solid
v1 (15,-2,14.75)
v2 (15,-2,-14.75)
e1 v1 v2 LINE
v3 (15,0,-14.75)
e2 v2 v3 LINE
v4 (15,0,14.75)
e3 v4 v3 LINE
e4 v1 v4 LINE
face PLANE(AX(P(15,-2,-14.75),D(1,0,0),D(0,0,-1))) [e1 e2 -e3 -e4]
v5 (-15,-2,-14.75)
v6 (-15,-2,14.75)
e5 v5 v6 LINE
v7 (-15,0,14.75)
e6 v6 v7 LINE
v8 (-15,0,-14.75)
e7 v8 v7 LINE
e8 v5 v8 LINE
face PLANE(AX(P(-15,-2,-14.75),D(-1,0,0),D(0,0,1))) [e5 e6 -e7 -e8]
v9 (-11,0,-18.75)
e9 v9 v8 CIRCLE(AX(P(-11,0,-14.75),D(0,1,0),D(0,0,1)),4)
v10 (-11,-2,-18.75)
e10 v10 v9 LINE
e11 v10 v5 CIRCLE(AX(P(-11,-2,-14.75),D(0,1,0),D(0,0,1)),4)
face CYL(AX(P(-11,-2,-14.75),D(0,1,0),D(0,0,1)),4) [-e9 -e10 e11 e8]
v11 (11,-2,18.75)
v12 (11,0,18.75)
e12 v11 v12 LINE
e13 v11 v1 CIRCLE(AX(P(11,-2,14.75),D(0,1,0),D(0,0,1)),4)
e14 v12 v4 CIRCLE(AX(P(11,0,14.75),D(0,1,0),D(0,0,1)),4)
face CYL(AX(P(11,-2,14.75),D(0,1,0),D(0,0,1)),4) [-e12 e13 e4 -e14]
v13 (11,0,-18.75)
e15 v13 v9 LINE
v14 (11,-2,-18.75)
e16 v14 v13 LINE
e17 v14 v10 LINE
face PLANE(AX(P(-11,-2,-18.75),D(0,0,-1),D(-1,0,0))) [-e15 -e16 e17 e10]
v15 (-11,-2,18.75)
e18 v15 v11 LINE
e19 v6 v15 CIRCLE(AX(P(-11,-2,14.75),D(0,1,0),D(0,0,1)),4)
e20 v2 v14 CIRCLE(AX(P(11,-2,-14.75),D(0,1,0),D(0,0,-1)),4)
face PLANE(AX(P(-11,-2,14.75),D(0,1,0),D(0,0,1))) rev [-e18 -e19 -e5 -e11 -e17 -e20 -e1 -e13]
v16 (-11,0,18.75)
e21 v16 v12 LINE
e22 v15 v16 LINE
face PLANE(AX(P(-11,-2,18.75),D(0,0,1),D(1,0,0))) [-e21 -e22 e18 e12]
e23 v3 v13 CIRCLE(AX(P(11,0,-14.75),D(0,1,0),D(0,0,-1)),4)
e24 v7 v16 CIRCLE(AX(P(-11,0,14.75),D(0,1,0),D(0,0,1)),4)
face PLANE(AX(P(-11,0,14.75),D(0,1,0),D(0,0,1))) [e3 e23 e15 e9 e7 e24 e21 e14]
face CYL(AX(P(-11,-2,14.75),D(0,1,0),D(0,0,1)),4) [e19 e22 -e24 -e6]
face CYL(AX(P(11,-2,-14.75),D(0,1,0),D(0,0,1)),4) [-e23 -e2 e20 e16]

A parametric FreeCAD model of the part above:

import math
import FreeCAD as App
import Part
import Sketcher
Q = App.Units.Quantity

doc = App.newDocument("Part")
body = doc.addObject("PartDesign::Body", "Body")

# Sketch on XZ plane
sketch1 = doc.addObject("Sketcher::SketchObject", "Sketch")
body.addObject(sketch1)
sketch1.AttachmentSupport = (doc.XZ_Plane, [""])
sketch1.MapMode = "FlatFace"
sketch1.addGeometry([
    Part.LineSegment(App.Vector(11, -18.8, 0), App.Vector(-11, -18.8, 0)),  # 0
    Part.ArcOfCircle(Part.Circle(App.Vector(-11, -14.8, 0), App.Vector(0, 0, 1), 4), math.radians(180), math.radians(270)),  # 1
    Part.LineSegment(App.Vector(-15, -14.8, 0), App.Vector(-15, 14.8, 0)),  # 2
    Part.ArcOfCircle(Part.Circle(App.Vector(-11, 14.8, 0), App.Vector(0, 0, 1), 4), math.radians(90), math.radians(180)),  # 3
    Part.LineSegment(App.Vector(-11, 18.8, 0), App.Vector(11, 18.8, 0)),  # 4
    Part.ArcOfCircle(Part.Circle(App.Vector(11, 14.8, 0), App.Vector(0, 0, 1), 4), math.radians(0), math.radians(90)),  # 5
    Part.LineSegment(App.Vector(15, 14.8, 0), App.Vector(15, -14.8, 0)),  # 6
    Part.ArcOfCircle(Part.Circle(App.Vector(11, -14.8, 0), App.Vector(0, 0, 1), 4), math.radians(-90), math.radians(0)),  # 7
], False)
sketch1.addConstraint([
    Sketcher.Constraint("Tangent", 0, 2, 1, 2),
    Sketcher.Constraint("Tangent", 1, 1, 2, 1),
    Sketcher.Constraint("Tangent", 2, 2, 3, 2),
    Sketcher.Constraint("Tangent", 3, 1, 4, 1),
    Sketcher.Constraint("Tangent", 4, 2, 5, 2),
    Sketcher.Constraint("Tangent", 5, 1, 6, 1),
    Sketcher.Constraint("Tangent", 6, 2, 7, 2),
    Sketcher.Constraint("Tangent", 7, 1, 0, 1),
    Sketcher.Constraint("Horizontal", 0),
    Sketcher.Constraint("Vertical", 2),
    Sketcher.Constraint("Horizontal", 4),
    Sketcher.Constraint("Vertical", 6),
    Sketcher.Constraint("Equal", 1, 3),
    Sketcher.Constraint("Equal", 3, 5),
    Sketcher.Constraint("Equal", 5, 7),
    Sketcher.Constraint("Symmetric", 1, 3, 5, 3, -1, 1),
    Sketcher.Constraint("Radius", 1, Q("4 mm")),
    Sketcher.Constraint("DistanceX", 0, 2, 0, 1, Q("22 mm")),
    Sketcher.Constraint("DistanceY", 2, 1, 2, 2, Q("29.5 mm")),
])
pad1 = doc.addObject("PartDesign::Pad", "Pad")
body.addObject(pad1)
pad1.Profile = sketch1
pad1.Length = 2

doc.recompute()
